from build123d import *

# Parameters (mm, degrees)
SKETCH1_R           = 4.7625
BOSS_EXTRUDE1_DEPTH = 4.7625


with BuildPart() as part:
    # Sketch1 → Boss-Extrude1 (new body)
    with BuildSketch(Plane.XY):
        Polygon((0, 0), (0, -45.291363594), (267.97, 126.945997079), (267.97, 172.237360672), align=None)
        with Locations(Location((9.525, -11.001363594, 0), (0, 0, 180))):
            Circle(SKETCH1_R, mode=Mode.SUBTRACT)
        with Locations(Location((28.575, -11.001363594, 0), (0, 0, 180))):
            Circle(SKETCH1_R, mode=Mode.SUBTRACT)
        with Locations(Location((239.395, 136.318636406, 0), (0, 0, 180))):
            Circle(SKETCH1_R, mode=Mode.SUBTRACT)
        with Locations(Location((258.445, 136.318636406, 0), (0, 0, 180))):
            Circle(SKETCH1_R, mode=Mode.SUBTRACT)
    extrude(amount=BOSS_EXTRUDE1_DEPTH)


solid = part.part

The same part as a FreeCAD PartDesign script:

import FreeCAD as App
import Part
import Sketcher
Q = App.Units.Quantity

doc = App.newDocument("Part")
params = doc.addObject("Spreadsheet::Sheet", "Params")
for row, (alias, value) in enumerate([
    ("sketch1_diameter", "0.375 in"),
    ("pad1_length", "0.1875 in"),
], start=1):
    params.set(f"A{row}", alias)
    params.set(f"B{row}", "=" + value)
    params.setAlias(f"B{row}", alias)

body = doc.addObject("PartDesign::Body", "Body")

# Sketch on XY plane
sketch1 = body.newObject("Sketcher::SketchObject", "Sketch")
sketch1.AttachmentSupport = (doc.getObject("XY_Plane"), [""])
sketch1.MapMode = "FlatFace"
sketch1.addGeometry(Part.LineSegment(App.Vector(0, 0, 0), App.Vector(0, -45.3, 0)), False)
sketch1.addGeometry(Part.LineSegment(App.Vector(0, -45.3, 0), App.Vector(268, 126.9, 0)), False)
sketch1.addGeometry(Part.LineSegment(App.Vector(268, 126.9, 0), App.Vector(268, 172.2, 0)), False)
sketch1.addGeometry(Part.LineSegment(App.Vector(268, 172.2, 0), App.Vector(0, 0, 0)), False)
sketch1.addGeometry(Part.Circle(App.Vector(9.5, -11, 0), App.Vector(0, 0, 1), 4.8), False)
sketch1.addGeometry(Part.Circle(App.Vector(28.6, -11, 0), App.Vector(0, 0, 1), 4.8), False)
sketch1.addGeometry(Part.Circle(App.Vector(239.4, 136.3, 0), App.Vector(0, 0, 1), 4.8), False)
sketch1.addGeometry(Part.Circle(App.Vector(258.4, 136.3, 0), App.Vector(0, 0, 1), 4.8), False)
sketch1.addConstraint(Sketcher.Constraint("Coincident", 0, 2, 1, 1))
sketch1.addConstraint(Sketcher.Constraint("Coincident", 1, 2, 2, 1))
sketch1.addConstraint(Sketcher.Constraint("Coincident", 2, 2, 3, 1))
sketch1.addConstraint(Sketcher.Constraint("Coincident", 3, 2, 0, 1))
sketch1.addConstraint(Sketcher.Constraint("Vertical", 0))
sketch1.addConstraint(Sketcher.Constraint("Vertical", 2))
sketch1.addConstraint(Sketcher.Constraint("Coincident", 3, 2, -1, 1))
sketch1.addConstraint(Sketcher.Constraint("Equal", 4, 5))
sketch1.addConstraint(Sketcher.Constraint("Equal", 5, 6))
sketch1.addConstraint(Sketcher.Constraint("Equal", 6, 7))
sketch1.addConstraint(Sketcher.Constraint("Parallel", 1, 3))
sketch1.addConstraint(Sketcher.Constraint("Horizontal", 4, 3, 5, 3))
sketch1.addConstraint(Sketcher.Constraint("Horizontal", 6, 3, 7, 3))
sketch1.addConstraint(Sketcher.Constraint("Diameter", 4, Q("0.375 in")))
sketch1.addConstraint(Sketcher.Constraint("DistanceX", 5, 3, 6, 3, Q("8.3 in")))
sketch1.addConstraint(Sketcher.Constraint("DistanceY", 5, 3, 6, 3, Q("5.8 in")))
sketch1.addConstraint(Sketcher.Constraint("DistanceX", 4, 3, 7, 3, Q("9.8 in")))
sketch1.addConstraint(Sketcher.Constraint("DistanceX", -1, 1, 1, 2, Q("10.55 in")))
sketch1.addConstraint(Sketcher.Constraint("DistanceX", 4, 3, 5, 3, Q("0.75 in")))
sketch1.addConstraint(Sketcher.Constraint("DistanceY", 0, 2, 4, 3, Q("1.35 in")))
sketch1.addConstraint(Sketcher.Constraint("DistanceX", -1, 1, 4, 3, Q("0.375 in")))
sketch1.addConstraint(Sketcher.Constraint("DistanceY", 0, 2, 0, 1, Q("45.291364 mm")))
sketch1.addConstraint(Sketcher.Constraint("DistanceY", -1, 1, 2, 2, Q("172.237361 mm")))
sketch1.setExpression("Constraints[13]", "Params.sketch1_diameter")
pad1 = body.newObject("PartDesign::Pad", "Pad")
pad1.Profile = sketch1
pad1.setExpression("Length", "Params.pad1_length")

doc.recompute()
